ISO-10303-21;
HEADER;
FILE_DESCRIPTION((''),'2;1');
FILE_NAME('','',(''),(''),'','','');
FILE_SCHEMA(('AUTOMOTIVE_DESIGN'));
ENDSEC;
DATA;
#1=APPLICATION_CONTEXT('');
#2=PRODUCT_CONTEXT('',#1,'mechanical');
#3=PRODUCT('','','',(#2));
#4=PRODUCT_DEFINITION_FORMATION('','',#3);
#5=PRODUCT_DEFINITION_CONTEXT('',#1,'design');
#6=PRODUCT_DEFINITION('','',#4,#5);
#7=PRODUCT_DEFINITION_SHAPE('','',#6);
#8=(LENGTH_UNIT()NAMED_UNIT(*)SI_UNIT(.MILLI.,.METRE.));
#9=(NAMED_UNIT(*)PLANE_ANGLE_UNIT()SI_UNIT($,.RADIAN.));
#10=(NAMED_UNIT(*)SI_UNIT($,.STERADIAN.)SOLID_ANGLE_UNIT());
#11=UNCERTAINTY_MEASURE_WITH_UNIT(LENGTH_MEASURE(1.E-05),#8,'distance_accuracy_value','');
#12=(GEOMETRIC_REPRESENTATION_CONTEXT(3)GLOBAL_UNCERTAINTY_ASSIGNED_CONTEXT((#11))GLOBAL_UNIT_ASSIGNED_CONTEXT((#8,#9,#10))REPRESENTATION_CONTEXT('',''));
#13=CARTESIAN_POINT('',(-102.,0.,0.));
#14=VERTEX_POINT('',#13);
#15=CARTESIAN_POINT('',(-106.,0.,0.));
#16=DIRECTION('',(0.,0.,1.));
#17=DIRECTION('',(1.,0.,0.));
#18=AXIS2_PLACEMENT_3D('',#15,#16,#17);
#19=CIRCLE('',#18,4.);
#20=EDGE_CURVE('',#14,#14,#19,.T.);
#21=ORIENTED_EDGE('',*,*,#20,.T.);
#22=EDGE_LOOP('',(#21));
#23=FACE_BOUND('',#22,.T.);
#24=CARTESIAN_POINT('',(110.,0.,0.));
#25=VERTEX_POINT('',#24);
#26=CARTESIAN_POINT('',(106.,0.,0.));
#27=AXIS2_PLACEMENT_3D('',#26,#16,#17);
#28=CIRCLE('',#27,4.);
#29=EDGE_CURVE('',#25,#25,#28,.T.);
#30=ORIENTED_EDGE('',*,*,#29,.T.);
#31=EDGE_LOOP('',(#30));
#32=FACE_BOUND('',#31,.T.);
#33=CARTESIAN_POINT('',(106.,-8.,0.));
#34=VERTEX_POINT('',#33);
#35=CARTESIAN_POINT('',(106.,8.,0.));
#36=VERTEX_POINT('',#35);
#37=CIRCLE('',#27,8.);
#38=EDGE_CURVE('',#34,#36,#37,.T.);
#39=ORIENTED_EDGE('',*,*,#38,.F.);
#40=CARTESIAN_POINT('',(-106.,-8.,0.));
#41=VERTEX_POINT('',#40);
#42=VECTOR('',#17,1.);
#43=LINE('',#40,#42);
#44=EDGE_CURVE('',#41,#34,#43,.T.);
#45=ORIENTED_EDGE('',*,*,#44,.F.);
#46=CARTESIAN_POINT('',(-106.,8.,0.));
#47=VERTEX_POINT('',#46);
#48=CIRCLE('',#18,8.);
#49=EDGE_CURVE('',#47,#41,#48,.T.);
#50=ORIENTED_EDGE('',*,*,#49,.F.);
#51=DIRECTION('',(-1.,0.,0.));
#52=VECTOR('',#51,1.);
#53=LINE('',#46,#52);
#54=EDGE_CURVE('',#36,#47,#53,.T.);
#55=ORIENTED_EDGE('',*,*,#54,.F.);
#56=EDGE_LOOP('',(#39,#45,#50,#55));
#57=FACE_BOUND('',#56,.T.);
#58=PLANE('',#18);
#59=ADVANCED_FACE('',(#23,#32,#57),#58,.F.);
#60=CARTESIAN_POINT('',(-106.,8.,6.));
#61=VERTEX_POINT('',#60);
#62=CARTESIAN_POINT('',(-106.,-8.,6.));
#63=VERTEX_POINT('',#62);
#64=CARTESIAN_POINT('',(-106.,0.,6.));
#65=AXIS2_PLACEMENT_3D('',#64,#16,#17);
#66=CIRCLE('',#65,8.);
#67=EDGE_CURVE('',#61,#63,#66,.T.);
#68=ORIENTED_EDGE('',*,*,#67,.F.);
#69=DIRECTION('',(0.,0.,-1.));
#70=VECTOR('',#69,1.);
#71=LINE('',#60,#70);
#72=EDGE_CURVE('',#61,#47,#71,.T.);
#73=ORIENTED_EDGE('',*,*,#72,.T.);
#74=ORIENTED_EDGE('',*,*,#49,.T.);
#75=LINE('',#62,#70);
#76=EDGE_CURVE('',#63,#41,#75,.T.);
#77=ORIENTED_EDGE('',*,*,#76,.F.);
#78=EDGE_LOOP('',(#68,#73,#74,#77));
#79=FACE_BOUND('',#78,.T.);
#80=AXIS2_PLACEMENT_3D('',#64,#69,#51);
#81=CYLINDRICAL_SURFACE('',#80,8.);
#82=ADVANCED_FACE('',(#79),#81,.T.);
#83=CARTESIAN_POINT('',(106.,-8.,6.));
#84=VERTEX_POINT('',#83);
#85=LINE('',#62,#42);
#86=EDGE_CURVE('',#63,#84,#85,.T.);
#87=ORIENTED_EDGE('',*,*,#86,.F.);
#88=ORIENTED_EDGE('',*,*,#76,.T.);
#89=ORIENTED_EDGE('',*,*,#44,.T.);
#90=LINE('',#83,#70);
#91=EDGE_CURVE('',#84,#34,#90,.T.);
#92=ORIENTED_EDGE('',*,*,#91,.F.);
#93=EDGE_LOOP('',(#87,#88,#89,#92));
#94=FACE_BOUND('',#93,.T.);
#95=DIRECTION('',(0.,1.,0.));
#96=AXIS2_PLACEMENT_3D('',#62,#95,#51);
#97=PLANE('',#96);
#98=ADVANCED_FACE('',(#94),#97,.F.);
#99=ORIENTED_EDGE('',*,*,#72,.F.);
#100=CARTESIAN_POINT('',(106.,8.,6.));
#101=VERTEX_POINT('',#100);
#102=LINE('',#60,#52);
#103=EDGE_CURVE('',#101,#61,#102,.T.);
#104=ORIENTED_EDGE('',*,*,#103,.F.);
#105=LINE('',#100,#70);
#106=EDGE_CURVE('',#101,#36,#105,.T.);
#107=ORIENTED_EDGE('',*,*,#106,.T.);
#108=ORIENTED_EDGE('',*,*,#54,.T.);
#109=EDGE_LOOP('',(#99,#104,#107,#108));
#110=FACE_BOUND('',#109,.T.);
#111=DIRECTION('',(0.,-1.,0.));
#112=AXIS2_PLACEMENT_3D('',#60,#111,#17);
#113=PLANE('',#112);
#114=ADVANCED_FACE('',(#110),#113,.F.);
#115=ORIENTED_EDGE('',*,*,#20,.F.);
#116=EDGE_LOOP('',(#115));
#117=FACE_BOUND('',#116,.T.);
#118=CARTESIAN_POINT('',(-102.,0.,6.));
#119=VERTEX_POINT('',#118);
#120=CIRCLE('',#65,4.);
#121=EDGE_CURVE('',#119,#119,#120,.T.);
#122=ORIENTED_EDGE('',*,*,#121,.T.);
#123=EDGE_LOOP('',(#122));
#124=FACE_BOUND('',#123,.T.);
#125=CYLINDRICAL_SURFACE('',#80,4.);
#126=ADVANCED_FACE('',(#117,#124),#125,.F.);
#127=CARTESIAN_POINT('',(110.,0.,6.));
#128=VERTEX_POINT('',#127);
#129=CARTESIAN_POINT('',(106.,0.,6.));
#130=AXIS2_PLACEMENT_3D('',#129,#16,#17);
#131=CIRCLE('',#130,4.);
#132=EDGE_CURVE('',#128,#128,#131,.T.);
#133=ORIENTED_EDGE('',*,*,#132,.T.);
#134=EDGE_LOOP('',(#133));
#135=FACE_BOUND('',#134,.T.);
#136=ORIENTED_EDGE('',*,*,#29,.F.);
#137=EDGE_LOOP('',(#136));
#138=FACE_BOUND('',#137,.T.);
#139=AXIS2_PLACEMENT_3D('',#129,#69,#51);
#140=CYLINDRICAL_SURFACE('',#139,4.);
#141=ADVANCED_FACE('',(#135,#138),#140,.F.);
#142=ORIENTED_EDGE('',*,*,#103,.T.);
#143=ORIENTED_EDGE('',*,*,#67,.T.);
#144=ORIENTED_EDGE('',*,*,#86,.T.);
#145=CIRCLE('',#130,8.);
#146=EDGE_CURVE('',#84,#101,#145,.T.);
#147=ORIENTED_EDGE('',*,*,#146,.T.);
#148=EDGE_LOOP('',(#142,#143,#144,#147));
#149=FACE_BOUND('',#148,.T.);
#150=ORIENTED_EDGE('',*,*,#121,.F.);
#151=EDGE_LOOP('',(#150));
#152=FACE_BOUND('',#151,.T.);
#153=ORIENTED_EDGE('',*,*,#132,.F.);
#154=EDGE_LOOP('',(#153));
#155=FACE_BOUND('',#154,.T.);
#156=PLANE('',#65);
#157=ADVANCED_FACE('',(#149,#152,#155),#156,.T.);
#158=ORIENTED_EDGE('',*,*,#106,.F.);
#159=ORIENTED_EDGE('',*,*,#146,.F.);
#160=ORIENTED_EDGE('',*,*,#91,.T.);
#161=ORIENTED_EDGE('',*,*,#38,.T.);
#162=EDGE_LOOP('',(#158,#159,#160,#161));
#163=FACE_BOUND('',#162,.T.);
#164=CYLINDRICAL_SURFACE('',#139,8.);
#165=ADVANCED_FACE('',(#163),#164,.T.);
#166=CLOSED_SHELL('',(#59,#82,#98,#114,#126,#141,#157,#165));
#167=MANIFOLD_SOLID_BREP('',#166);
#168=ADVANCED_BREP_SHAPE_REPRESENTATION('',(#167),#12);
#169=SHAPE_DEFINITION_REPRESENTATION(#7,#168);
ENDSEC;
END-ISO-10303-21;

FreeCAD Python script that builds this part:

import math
import FreeCAD as App
import Part
import Sketcher

V = App.Vector

doc = App.newDocument("Part")
body = doc.addObject("PartDesign::Body", "Body")

# Sketch on XY plane
sketch1 = doc.addObject("Sketcher::SketchObject", "Sketch")
body.addObject(sketch1)
sketch1.AttachmentSupport = (doc.XY_Plane, [""])
sketch1.MapMode = "FlatFace"
sketch1.addGeometry(Part.LineSegment(V(106, 8, 0), V(-106, 8, 0)), False)
sketch1.addGeometry(Part.ArcOfCircle(Part.Circle(V(-106, 0, 0), V(0, 0, 1), 8), math.radians(90), math.radians(270)), False)
sketch1.addGeometry(Part.LineSegment(V(-106, -8, 0), V(106, -8, 0)), False)
sketch1.addGeometry(Part.ArcOfCircle(Part.Circle(V(106, 0, 0), V(0, 0, 1), 8), math.radians(-90), math.radians(90)), False)
sketch1.addGeometry(Part.Circle(V(106, 0, 0), V(0, 0, 1), 4), False)
sketch1.addGeometry(Part.Circle(V(-106, 0, 0), V(0, 0, 1), 4), False)
sketch1.addConstraint(Sketcher.Constraint("Tangent", 0, 2, 1, 1))
sketch1.addConstraint(Sketcher.Constraint("Tangent", 1, 2, 2, 1))
sketch1.addConstraint(Sketcher.Constraint("Tangent", 2, 2, 3, 1))
sketch1.addConstraint(Sketcher.Constraint("Tangent", 3, 2, 0, 1))
sketch1.addConstraint(Sketcher.Constraint("Horizontal", 0))
sketch1.addConstraint(Sketcher.Constraint("Horizontal", 2))
sketch1.addConstraint(Sketcher.Constraint("Coincident", 4, 3, 3, 3))
sketch1.addConstraint(Sketcher.Constraint("Coincident", 5, 3, 1, 3))
sketch1.addConstraint(Sketcher.Constraint("Equal", 4, 5))
sketch1.addConstraint(Sketcher.Constraint("Symmetric", 1, 3, 3, 3, -1, 1))
sketch1.addConstraint(Sketcher.Constraint("Diameter", 4, 8.0))
sketch1.addConstraint(Sketcher.Constraint("Radius", 1, 8.0))
sketch1.addConstraint(Sketcher.Constraint("DistanceX", 0, 2, 0, 1, 212.0))
pad1 = doc.addObject("PartDesign::Pad", "Pad")
body.addObject(pad1)
pad1.Profile = sketch1
pad1.Length = 6

doc.recompute()
